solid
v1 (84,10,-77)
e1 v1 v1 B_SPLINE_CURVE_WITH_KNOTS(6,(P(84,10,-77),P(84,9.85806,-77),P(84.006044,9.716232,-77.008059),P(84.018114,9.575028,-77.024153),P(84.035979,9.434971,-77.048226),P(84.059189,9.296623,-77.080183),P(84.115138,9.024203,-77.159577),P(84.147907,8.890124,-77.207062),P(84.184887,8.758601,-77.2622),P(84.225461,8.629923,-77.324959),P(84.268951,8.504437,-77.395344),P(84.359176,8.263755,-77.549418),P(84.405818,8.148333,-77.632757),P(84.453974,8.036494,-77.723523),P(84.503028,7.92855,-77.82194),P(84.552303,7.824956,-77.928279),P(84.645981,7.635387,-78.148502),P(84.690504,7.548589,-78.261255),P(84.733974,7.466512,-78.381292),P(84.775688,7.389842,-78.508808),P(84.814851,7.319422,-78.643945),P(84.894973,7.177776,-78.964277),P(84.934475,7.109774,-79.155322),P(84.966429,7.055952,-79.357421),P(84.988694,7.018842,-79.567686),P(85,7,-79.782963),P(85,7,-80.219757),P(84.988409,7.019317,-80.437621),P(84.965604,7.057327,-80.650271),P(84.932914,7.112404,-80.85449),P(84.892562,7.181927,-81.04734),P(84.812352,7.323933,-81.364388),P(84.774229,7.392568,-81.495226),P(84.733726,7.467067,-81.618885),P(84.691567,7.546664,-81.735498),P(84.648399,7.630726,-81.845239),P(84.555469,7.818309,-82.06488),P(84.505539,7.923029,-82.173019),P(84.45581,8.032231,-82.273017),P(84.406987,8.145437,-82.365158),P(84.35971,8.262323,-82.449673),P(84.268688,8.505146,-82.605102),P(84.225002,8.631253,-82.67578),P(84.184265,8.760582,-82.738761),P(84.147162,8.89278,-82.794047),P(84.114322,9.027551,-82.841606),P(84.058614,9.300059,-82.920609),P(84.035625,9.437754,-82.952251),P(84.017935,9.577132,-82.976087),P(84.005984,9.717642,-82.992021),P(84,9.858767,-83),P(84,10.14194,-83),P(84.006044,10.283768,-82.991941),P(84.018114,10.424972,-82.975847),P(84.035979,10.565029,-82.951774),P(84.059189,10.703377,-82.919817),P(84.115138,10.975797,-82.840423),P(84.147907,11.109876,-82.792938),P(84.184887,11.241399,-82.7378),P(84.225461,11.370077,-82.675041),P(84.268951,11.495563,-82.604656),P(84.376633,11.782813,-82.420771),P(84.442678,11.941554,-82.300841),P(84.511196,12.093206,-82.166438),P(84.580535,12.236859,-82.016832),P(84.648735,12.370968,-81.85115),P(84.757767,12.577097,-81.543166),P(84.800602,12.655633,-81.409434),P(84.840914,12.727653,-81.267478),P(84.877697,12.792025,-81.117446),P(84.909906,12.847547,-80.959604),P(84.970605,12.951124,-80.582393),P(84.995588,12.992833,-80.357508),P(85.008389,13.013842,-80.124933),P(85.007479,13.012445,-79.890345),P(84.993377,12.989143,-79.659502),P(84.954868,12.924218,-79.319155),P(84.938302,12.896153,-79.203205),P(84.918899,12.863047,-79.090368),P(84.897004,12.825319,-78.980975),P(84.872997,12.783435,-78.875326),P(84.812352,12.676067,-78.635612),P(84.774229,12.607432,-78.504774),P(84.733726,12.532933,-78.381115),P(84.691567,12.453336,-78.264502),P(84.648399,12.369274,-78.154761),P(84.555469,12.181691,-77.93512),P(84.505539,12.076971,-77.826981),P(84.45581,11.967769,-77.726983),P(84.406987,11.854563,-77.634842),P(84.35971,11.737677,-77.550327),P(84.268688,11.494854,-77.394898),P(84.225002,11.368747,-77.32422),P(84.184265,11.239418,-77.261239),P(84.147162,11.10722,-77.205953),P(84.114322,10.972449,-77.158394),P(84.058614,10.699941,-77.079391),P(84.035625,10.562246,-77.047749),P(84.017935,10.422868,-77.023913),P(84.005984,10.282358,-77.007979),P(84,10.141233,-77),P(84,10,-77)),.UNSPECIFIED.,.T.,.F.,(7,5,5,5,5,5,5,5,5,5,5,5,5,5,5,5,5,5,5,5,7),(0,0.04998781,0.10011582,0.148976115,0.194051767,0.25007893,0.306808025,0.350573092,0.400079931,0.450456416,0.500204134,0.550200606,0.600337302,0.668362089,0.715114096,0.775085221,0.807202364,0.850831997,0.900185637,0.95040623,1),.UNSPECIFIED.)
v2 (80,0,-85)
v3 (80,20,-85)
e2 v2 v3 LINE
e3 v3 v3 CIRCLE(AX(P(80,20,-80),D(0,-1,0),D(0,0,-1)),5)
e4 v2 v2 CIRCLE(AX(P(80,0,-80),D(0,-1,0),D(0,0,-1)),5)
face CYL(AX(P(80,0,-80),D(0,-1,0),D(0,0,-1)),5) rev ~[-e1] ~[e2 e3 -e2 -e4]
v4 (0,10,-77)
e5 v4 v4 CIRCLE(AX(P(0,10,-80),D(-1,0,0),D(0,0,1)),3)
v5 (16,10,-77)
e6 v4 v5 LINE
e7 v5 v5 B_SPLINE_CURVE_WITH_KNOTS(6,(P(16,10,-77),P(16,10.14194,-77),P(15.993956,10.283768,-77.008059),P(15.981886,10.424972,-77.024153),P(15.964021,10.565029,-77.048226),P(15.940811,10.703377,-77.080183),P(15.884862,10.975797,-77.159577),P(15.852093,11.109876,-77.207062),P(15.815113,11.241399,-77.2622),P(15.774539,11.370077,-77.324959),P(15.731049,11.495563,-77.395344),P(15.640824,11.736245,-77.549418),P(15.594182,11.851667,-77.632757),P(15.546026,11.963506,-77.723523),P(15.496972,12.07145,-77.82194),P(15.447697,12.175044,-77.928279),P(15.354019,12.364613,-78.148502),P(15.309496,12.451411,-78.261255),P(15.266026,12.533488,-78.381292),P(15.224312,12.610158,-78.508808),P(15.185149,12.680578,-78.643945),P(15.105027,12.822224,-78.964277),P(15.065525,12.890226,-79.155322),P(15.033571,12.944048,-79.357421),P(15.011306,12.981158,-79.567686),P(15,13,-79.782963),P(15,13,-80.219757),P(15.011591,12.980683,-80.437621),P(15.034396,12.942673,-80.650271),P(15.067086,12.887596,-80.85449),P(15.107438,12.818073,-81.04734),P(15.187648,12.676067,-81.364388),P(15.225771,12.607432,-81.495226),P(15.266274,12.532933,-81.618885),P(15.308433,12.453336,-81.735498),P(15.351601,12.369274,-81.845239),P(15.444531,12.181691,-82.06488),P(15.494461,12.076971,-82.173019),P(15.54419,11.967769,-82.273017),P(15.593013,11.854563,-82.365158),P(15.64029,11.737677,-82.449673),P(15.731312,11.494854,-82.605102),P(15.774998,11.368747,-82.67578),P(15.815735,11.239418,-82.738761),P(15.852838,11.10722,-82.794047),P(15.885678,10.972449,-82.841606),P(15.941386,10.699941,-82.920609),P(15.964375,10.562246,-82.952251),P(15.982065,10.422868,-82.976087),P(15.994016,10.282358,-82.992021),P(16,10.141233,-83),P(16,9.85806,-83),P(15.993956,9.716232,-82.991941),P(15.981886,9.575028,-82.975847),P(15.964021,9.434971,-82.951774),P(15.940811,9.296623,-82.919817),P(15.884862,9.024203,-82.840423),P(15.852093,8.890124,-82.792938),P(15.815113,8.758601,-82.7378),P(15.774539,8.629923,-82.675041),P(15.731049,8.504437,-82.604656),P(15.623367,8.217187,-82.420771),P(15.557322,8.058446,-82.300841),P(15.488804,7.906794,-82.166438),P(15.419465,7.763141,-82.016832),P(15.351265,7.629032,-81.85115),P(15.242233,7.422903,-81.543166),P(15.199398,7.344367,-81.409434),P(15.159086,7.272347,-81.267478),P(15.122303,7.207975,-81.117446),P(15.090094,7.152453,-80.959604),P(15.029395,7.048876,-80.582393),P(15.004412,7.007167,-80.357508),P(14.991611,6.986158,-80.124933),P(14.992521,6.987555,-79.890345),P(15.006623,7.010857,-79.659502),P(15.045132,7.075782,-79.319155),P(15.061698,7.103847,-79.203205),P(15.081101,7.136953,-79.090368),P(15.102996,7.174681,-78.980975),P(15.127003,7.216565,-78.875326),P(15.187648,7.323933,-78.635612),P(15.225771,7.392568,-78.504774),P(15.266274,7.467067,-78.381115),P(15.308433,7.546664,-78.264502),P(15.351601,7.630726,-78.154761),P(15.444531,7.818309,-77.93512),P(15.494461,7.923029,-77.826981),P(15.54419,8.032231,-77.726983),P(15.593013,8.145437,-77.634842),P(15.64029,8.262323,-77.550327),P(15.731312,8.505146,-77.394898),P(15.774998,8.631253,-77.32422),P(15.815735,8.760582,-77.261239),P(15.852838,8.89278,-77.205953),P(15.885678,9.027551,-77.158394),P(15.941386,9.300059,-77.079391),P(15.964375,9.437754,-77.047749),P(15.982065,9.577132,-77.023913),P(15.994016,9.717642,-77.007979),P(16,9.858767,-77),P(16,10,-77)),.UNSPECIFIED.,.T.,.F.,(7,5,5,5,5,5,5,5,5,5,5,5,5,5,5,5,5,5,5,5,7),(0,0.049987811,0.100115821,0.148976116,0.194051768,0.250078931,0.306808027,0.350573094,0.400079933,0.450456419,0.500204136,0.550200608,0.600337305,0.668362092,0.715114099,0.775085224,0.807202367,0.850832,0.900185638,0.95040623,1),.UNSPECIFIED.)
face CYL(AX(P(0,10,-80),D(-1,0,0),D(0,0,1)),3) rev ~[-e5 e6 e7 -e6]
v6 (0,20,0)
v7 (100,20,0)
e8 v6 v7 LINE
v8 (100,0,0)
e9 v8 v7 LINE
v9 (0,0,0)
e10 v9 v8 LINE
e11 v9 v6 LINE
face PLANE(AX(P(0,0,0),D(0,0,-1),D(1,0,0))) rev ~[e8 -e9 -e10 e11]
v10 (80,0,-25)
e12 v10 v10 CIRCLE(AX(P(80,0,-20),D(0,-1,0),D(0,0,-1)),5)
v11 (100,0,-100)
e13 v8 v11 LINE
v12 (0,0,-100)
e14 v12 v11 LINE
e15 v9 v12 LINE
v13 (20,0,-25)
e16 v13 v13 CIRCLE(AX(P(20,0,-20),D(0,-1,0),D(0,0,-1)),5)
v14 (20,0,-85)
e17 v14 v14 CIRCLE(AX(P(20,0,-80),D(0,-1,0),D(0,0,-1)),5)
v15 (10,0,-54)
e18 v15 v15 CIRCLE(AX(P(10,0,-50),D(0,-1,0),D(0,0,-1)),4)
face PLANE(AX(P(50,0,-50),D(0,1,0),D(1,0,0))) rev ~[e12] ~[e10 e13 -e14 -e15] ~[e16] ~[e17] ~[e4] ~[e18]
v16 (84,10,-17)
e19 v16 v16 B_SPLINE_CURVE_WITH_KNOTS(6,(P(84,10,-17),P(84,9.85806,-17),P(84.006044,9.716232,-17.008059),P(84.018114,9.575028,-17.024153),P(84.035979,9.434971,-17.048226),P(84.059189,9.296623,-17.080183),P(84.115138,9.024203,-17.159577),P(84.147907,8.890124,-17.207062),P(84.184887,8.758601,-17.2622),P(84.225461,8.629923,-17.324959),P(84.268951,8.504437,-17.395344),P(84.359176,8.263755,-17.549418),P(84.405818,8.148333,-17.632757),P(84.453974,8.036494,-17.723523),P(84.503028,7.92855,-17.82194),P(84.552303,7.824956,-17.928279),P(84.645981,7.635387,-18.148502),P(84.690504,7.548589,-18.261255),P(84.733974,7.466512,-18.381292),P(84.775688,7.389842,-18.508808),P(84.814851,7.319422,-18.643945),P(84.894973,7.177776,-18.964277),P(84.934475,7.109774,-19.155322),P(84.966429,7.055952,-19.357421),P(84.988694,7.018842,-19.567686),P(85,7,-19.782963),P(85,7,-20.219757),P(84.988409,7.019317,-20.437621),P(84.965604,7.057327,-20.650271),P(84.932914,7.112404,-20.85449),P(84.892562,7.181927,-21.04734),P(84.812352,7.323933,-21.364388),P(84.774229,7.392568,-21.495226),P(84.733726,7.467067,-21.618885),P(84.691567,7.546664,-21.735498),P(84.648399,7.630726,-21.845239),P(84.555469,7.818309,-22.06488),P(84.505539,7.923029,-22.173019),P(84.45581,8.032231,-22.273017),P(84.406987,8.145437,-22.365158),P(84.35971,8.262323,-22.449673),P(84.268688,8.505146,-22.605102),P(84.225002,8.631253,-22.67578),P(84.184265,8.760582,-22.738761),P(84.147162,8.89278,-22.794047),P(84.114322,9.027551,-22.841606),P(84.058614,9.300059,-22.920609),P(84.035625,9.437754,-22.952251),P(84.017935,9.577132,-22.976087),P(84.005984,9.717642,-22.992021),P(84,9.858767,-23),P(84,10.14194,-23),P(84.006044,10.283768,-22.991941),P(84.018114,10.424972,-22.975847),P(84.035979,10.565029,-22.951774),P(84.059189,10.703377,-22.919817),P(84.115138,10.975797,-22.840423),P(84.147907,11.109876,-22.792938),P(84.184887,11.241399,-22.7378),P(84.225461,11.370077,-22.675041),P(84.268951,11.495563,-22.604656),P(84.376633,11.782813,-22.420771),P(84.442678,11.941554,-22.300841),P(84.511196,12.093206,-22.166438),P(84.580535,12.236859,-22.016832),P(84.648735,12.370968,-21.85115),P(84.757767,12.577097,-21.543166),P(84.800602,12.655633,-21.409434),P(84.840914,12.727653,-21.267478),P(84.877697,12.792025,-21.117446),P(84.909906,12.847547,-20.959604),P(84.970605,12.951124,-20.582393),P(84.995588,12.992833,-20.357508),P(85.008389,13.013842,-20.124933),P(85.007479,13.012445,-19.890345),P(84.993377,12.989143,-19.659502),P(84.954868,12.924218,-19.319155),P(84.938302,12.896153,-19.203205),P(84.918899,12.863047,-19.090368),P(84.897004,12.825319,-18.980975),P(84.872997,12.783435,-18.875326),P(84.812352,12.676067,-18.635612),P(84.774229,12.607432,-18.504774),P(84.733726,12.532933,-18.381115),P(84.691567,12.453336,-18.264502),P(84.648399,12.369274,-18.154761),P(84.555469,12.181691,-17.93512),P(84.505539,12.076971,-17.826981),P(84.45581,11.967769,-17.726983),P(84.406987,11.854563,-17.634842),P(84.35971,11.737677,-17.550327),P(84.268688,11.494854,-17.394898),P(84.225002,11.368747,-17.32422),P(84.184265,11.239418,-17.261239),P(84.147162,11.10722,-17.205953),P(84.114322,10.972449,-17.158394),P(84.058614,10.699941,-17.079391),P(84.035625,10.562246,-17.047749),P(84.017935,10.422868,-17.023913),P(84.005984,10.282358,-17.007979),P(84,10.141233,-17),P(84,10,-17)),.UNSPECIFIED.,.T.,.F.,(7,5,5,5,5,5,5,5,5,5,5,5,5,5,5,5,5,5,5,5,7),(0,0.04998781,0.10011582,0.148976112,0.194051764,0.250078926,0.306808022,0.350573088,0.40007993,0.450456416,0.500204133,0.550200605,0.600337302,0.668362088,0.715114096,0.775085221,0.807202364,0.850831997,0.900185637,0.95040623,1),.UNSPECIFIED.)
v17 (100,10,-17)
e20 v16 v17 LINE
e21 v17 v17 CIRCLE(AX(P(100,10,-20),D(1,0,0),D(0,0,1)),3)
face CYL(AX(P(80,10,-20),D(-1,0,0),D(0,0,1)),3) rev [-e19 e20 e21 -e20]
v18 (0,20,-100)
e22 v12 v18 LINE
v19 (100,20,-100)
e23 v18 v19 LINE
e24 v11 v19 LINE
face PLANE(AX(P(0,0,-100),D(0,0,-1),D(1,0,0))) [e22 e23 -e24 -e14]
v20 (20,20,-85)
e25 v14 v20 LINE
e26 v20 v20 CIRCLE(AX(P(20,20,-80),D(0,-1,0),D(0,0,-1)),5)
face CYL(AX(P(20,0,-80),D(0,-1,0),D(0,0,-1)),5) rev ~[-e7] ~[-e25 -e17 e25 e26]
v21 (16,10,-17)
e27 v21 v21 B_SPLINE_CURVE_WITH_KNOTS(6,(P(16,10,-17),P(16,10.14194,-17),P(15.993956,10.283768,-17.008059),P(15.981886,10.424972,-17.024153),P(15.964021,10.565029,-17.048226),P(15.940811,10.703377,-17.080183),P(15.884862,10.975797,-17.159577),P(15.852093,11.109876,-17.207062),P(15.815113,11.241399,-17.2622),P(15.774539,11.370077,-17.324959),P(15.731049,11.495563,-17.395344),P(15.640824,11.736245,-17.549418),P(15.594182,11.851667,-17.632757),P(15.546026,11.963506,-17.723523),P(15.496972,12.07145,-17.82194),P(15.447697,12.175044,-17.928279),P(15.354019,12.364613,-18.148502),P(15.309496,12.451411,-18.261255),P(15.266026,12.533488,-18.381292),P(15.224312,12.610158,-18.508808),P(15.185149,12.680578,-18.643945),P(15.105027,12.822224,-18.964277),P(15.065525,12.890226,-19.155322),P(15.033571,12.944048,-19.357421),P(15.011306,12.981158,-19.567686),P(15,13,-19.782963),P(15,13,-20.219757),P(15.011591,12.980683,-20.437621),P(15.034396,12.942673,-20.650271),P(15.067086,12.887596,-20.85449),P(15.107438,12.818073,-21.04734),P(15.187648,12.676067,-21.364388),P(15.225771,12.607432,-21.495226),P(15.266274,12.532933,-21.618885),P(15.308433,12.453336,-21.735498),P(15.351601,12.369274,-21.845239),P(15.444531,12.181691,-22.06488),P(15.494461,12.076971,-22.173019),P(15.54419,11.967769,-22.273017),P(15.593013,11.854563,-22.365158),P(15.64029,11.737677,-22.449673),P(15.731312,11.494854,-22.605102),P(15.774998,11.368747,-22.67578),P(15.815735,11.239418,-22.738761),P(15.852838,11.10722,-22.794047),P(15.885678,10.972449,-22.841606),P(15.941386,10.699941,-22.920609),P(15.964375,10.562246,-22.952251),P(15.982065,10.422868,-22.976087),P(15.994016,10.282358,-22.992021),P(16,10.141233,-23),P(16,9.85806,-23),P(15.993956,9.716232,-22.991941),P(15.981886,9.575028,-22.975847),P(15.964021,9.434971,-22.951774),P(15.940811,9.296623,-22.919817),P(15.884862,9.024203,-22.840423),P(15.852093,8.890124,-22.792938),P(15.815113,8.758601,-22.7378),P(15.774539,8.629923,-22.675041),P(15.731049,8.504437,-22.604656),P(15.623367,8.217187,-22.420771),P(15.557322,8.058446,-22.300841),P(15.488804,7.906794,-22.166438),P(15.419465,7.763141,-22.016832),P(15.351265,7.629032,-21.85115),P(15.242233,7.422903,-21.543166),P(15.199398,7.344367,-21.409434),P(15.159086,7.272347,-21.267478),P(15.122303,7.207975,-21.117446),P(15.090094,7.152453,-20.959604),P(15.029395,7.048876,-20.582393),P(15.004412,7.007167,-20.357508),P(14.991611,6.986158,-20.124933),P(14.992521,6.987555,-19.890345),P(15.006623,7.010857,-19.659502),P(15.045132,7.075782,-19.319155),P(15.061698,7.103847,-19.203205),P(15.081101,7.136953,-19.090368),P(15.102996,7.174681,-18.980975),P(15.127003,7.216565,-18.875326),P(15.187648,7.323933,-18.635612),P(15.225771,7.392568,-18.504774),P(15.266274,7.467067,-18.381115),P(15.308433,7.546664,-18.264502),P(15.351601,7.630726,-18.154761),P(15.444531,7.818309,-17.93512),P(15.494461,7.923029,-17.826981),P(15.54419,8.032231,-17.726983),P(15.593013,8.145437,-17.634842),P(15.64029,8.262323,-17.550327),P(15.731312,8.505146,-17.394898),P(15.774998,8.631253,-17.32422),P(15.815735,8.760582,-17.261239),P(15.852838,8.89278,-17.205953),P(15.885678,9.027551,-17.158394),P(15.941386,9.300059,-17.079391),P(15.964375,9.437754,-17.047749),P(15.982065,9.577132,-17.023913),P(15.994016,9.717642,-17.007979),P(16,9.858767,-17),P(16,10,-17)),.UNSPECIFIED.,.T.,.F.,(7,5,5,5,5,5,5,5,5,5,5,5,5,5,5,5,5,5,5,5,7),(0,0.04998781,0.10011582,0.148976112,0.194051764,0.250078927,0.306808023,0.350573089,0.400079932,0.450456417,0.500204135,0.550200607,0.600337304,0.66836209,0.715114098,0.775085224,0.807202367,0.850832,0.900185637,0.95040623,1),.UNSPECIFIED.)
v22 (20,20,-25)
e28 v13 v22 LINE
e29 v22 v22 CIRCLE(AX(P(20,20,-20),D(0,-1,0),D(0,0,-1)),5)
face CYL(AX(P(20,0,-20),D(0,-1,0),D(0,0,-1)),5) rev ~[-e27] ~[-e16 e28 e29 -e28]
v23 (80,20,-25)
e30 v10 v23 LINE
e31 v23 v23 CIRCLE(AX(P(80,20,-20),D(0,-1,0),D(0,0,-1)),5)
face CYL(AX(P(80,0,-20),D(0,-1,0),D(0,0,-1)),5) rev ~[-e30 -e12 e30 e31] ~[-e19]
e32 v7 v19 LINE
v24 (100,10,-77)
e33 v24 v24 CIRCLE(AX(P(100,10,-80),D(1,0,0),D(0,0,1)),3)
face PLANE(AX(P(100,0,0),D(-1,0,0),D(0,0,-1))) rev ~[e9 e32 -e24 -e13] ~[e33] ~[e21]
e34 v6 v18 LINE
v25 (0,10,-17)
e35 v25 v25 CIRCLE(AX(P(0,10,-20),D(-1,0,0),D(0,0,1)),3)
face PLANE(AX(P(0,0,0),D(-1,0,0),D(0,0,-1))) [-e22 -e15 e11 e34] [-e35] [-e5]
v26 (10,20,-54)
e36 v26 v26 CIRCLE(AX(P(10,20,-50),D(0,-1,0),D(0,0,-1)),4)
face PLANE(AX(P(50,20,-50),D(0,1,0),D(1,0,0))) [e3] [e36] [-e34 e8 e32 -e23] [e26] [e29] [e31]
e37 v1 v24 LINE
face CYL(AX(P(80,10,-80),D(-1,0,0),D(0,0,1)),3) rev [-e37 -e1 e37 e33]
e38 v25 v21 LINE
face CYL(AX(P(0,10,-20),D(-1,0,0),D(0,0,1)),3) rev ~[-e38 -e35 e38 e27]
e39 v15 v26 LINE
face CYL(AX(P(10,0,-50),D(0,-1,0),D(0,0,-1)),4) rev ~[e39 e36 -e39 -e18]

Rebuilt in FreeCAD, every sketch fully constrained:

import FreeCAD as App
import Part
import Sketcher


def add_polygon(sketch, points):
    """Adds a closed chain of lines whose ends are joined by coincident constraints."""
    first, n = sketch.GeometryCount, len(points)
    for a, b in zip(points, points[1:] + points[:1]):
        sketch.addGeometry(Part.LineSegment(App.Vector(*a, 0), App.Vector(*b, 0)), False)
    for i in range(n):
        sketch.addConstraint(Sketcher.Constraint("Coincident", first + i, 2, first + (i + 1) % n, 1))

doc = App.newDocument("Part")
body = doc.addObject("PartDesign::Body", "Body")

# Sketch on XZ plane
sketch1 = body.newObject("Sketcher::SketchObject", "Sketch")
sketch1.AttachmentSupport = (doc.getObject("XZ_Plane"), [""])
sketch1.MapMode = "FlatFace"
add_polygon(sketch1, [(0, -100), (0, 0), (100, 0), (100, -100)])  # lines 0-3
sketch1.addConstraint([
    Sketcher.Constraint("Vertical", 0),
    Sketcher.Constraint("Horizontal", 1),
    Sketcher.Constraint("Vertical", 2),
    Sketcher.Constraint("Horizontal", 3),
    Sketcher.Constraint("Coincident", 0, 2, -1, 1),
    Sketcher.Constraint("Equal", 3, 0),
    Sketcher.Constraint("DistanceX", 1, 1, 1, 2, 100.0),
])
pad1 = body.newObject("PartDesign::Pad", "Pad")
pad1.Profile = sketch1
pad1.Length = 20
pad1.Reversed = True

# Sketch on XZ plane
sketch2 = body.newObject("Sketcher::SketchObject", "Sketch001")
sketch2.AttachmentSupport = (doc.getObject("XZ_Plane"), [""])
sketch2.MapMode = "FlatFace"
sketch2.addGeometry([
    Part.Circle(App.Vector(20, -20, 0), App.Vector(0, 0, 1), 5),  # 0
    Part.Circle(App.Vector(10, -50, 0), App.Vector(0, 0, 1), 4),  # 1
    Part.Circle(App.Vector(20, -80, 0), App.Vector(0, 0, 1), 5),  # 2
    Part.Circle(App.Vector(80, -20, 0), App.Vector(0, 0, 1), 5),  # 3
    Part.Circle(App.Vector(80, -80, 0), App.Vector(0, 0, 1), 5),  # 4
], False)
sketch2.addConstraint([
    Sketcher.Constraint("Equal", 0, 2),
    Sketcher.Constraint("Equal", 2, 3),
    Sketcher.Constraint("Equal", 3, 4),
    Sketcher.Constraint("Horizontal", 0, 3, 3, 3),
    Sketcher.Constraint("Horizontal", 2, 3, 4, 3),
    Sketcher.Constraint("Vertical", 0, 3, 2, 3),
    Sketcher.Constraint("Vertical", 3, 3, 4, 3),
    Sketcher.Constraint("Diameter", 0, 10.0),
    Sketcher.Constraint("Diameter", 1, 8.0),
    Sketcher.Constraint("DistanceX", -1, 1, 0, 3, 20.0),
    Sketcher.Constraint("DistanceY", 0, 3, -1, 1, 20.0),
    Sketcher.Constraint("DistanceX", -1, 1, 1, 3, 10.0),
    Sketcher.Constraint("DistanceY", 1, 3, -1, 1, 50.0),
    Sketcher.Constraint("DistanceY", 2, 3, -1, 1, 80.0),
    Sketcher.Constraint("DistanceX", -1, 1, 3, 3, 80.0),
])
pocket1 = body.newObject("PartDesign::Pocket", "Pocket")
pocket1.Profile = sketch2
pocket1.Length = 20

# Sketch on YZ plane
sketch3 = body.newObject("Sketcher::SketchObject", "Sketch002")
sketch3.AttachmentSupport = (doc.getObject("YZ_Plane"), [""])
sketch3.MapMode = "FlatFace"
sketch3.addGeometry([
    Part.Circle(App.Vector(10, -80, 0), App.Vector(0, 0, 1), 3),
    Part.Circle(App.Vector(10, -20, 0), App.Vector(0, 0, 1), 3),
], False)
sketch3.addConstraint([
    Sketcher.Constraint("Equal", 0, 1),
    Sketcher.Constraint("Vertical", 0, 3, 1, 3),
    Sketcher.Constraint("Diameter", 0, 6.0),
    Sketcher.Constraint("DistanceX", -1, 1, 0, 3, 10.0),
    Sketcher.Constraint("DistanceY", 0, 3, -1, 1, 80.0),
    Sketcher.Constraint("DistanceY", 1, 3, -1, 1, 20.0),
])
pocket2 = body.newObject("PartDesign::Pocket", "Pocket001")
pocket2.Profile = sketch3
pocket2.Length = 20
pocket2.Reversed = True

# Sketch on YZ plane
sketch4 = body.newObject("Sketcher::SketchObject", "Sketch003")
sketch4.AttachmentSupport = (doc.getObject("YZ_Plane"), [""])
sketch4.MapMode = "FlatFace"
sketch4.AttachmentOffset = App.Placement(App.Vector(0, 0, 80), App.Rotation())
sketch4.addGeometry([
    Part.Circle(App.Vector(10, -20, 0), App.Vector(0, 0, 1), 3),
    Part.Circle(App.Vector(10, -80, 0), App.Vector(0, 0, 1), 3),
], False)
sketch4.addConstraint([
    Sketcher.Constraint("Equal", 0, 1),
    Sketcher.Constraint("Vertical", 0, 3, 1, 3),
    Sketcher.Constraint("Diameter", 0, 6.0),
    Sketcher.Constraint("DistanceX", -1, 1, 0, 3, 10.0),
    Sketcher.Constraint("DistanceY", 0, 3, -1, 1, 20.0),
    Sketcher.Constraint("DistanceY", 1, 3, -1, 1, 80.0),
])
pocket3 = body.newObject("PartDesign::Pocket", "Pocket002")
pocket3.Profile = sketch4
pocket3.Length = 20
pocket3.Reversed = True

doc.recompute()
